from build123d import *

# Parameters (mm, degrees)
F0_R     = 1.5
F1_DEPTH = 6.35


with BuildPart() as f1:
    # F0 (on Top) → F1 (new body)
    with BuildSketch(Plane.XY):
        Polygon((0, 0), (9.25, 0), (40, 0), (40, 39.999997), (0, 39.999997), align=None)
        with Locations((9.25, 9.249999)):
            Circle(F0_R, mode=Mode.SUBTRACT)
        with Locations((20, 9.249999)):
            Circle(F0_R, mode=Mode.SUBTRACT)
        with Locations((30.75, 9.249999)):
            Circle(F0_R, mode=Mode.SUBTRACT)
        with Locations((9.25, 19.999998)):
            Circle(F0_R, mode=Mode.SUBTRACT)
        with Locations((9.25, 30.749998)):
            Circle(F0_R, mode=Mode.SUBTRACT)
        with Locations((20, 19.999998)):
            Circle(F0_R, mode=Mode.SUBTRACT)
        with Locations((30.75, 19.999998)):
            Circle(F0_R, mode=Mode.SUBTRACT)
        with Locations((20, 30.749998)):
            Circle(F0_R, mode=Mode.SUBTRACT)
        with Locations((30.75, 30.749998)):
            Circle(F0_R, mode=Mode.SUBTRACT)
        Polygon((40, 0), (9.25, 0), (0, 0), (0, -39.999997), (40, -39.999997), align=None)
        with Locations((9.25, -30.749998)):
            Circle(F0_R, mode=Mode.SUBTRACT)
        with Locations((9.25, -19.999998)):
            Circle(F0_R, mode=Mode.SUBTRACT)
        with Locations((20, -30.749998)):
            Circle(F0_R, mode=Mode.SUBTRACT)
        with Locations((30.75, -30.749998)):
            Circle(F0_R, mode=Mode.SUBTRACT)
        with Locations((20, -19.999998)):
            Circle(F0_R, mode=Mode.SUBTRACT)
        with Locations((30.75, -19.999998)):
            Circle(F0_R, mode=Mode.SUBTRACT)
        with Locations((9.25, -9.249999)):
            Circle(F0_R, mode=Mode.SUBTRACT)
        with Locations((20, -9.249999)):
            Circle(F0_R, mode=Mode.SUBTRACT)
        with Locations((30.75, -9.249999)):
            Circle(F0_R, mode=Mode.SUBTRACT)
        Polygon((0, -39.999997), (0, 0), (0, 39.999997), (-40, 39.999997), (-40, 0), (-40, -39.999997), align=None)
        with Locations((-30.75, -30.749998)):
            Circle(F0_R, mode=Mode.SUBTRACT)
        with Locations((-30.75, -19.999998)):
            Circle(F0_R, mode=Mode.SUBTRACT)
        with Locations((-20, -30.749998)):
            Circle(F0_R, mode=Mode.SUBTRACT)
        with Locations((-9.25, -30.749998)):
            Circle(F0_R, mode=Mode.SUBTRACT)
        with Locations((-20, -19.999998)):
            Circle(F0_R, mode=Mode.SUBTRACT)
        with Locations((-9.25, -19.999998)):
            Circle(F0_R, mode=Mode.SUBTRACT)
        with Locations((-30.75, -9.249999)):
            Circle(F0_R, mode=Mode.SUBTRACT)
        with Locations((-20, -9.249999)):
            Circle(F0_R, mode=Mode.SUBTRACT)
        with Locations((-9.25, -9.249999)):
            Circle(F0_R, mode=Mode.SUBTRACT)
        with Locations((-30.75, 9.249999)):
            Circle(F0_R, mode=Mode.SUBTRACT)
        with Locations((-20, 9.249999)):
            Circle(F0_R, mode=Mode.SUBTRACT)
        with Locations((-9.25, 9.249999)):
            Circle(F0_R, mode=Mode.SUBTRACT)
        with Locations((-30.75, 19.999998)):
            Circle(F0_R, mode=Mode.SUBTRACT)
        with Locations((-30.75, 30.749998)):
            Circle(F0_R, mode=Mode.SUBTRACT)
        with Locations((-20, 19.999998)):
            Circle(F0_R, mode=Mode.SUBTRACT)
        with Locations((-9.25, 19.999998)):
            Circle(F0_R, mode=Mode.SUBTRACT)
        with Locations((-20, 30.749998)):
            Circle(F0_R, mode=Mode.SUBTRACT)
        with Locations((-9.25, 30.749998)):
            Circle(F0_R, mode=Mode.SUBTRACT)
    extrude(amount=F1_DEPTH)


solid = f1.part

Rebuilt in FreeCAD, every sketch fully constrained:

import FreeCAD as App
import Part
import Sketcher
from FreeCAD import Vector

doc = App.newDocument("Part")
body = doc.addObject("PartDesign::Body", "Body")

# Sketch on XY plane
sketch1 = body.newObject("Sketcher::SketchObject", "Sketch")
sketch1.AttachmentSupport = (doc.getObject("XY_Plane"), [""])
sketch1.MapMode = "FlatFace"
sketch1.addGeometry([
    Part.LineSegment(Vector(40, 40, 0), Vector(-40, 40, 0)),  # 0
    Part.LineSegment(Vector(-40, 40, 0), Vector(-40, -40, 0)),  # 1
    Part.LineSegment(Vector(-40, -40, 0), Vector(40, -40, 0)),  # 2
    Part.LineSegment(Vector(40, -40, 0), Vector(40, 40, 0)),  # 3
    Part.Circle(Vector(-30.8, -30.7, 0), Vector(0, 0, 1), 1.5),  # 4
    Part.Circle(Vector(-20, -30.7, 0), Vector(0, 0, 1), 1.5),  # 5
    Part.Circle(Vector(-30.8, -20, 0), Vector(0, 0, 1), 1.5),  # 6
    Part.Circle(Vector(-20, -20, 0), Vector(0, 0, 1), 1.5),  # 7
    Part.Circle(Vector(-9.2, -30.7, 0), Vector(0, 0, 1), 1.5),  # 8
    Part.Circle(Vector(-9.2, -20, 0), Vector(0, 0, 1), 1.5),  # 9
    Part.Circle(Vector(-30.8, -9.2, 0), Vector(0, 0, 1), 1.5),  # 10
    Part.Circle(Vector(-20, -9.2, 0), Vector(0, 0, 1), 1.5),  # 11
    Part.Circle(Vector(-9.2, -9.2, 0), Vector(0, 0, 1), 1.5),  # 12
    Part.Circle(Vector(9.2, -30.7, 0), Vector(0, 0, 1), 1.5),  # 13
    Part.Circle(Vector(9.2, -20, 0), Vector(0, 0, 1), 1.5),  # 14
    Part.Circle(Vector(20, -30.7, 0), Vector(0, 0, 1), 1.5),  # 15
    Part.Circle(Vector(30.8, -30.7, 0), Vector(0, 0, 1), 1.5),  # 16
    Part.Circle(Vector(20, -20, 0), Vector(0, 0, 1), 1.5),  # 17
    Part.Circle(Vector(30.8, -20, 0), Vector(0, 0, 1), 1.5),  # 18
    Part.Circle(Vector(9.2, -9.2, 0), Vector(0, 0, 1), 1.5),  # 19
    Part.Circle(Vector(20, -9.2, 0), Vector(0, 0, 1), 1.5),  # 20
    Part.Circle(Vector(30.8, -9.2, 0), Vector(0, 0, 1), 1.5),  # 21
    Part.Circle(Vector(-30.8, 9.2, 0), Vector(0, 0, 1), 1.5),  # 22
    Part.Circle(Vector(-20, 9.2, 0), Vector(0, 0, 1), 1.5),  # 23
    Part.Circle(Vector(-9.2, 9.2, 0), Vector(0, 0, 1), 1.5),  # 24
    Part.Circle(Vector(-30.8, 20, 0), Vector(0, 0, 1), 1.5),  # 25
    Part.Circle(Vector(-20, 20, 0), Vector(0, 0, 1), 1.5),  # 26
    Part.Circle(Vector(-30.8, 30.7, 0), Vector(0, 0, 1), 1.5),  # 27
    Part.Circle(Vector(-20, 30.7, 0), Vector(0, 0, 1), 1.5),  # 28
    Part.Circle(Vector(-9.2, 20, 0), Vector(0, 0, 1), 1.5),  # 29
    Part.Circle(Vector(-9.2, 30.7, 0), Vector(0, 0, 1), 1.5),  # 30
    Part.Circle(Vector(9.2, 9.2, 0), Vector(0, 0, 1), 1.5),  # 31
    Part.Circle(Vector(20, 9.2, 0), Vector(0, 0, 1), 1.5),  # 32
    Part.Circle(Vector(30.8, 9.2, 0), Vector(0, 0, 1), 1.5),  # 33
    Part.Circle(Vector(9.2, 20, 0), Vector(0, 0, 1), 1.5),  # 34
    Part.Circle(Vector(9.2, 30.7, 0), Vector(0, 0, 1), 1.5),  # 35
    Part.Circle(Vector(20, 20, 0), Vector(0, 0, 1), 1.5),  # 36
    Part.Circle(Vector(30.8, 20, 0), Vector(0, 0, 1), 1.5),  # 37
    Part.Circle(Vector(20, 30.7, 0), Vector(0, 0, 1), 1.5),  # 38
    Part.Circle(Vector(30.8, 30.7, 0), Vector(0, 0, 1), 1.5),  # 39
], False)
sketch1.addConstraint([
    Sketcher.Constraint("Coincident", 0, 2, 1, 1),
    Sketcher.Constraint("Coincident", 1, 2, 2, 1),
    Sketcher.Constraint("Coincident", 2, 2, 3, 1),
    Sketcher.Constraint("Coincident", 3, 2, 0, 1),
    Sketcher.Constraint("Horizontal", 0),
    Sketcher.Constraint("Vertical", 1),
    Sketcher.Constraint("Horizontal", 2),
    Sketcher.Constraint("Vertical", 3),
    Sketcher.Constraint("Equal", 4, 5),
    Sketcher.Constraint("Equal", 5, 6),
    Sketcher.Constraint("Equal", 6, 7),
    Sketcher.Constraint("Equal", 7, 8),
    Sketcher.Constraint("Equal", 8, 9),
    Sketcher.Constraint("Equal", 9, 10),
    Sketcher.Constraint("Equal", 10, 11),
    Sketcher.Constraint("Equal", 11, 12),
    Sketcher.Constraint("Equal", 12, 13),
    Sketcher.Constraint("Equal", 13, 14),
    Sketcher.Constraint("Equal", 14, 15),
    Sketcher.Constraint("Equal", 15, 16),
    Sketcher.Constraint("Equal", 16, 17),
    Sketcher.Constraint("Equal", 17, 18),
    Sketcher.Constraint("Equal", 18, 19),
    Sketcher.Constraint("Equal", 19, 20),
    Sketcher.Constraint("Equal", 20, 21),
    Sketcher.Constraint("Equal", 21, 22),
    Sketcher.Constraint("Equal", 22, 23),
    Sketcher.Constraint("Equal", 23, 24),
    Sketcher.Constraint("Equal", 24, 25),
    Sketcher.Constraint("Equal", 25, 26),
    Sketcher.Constraint("Equal", 26, 27),
    Sketcher.Constraint("Equal", 27, 28),
    Sketcher.Constraint("Equal", 28, 29),
    Sketcher.Constraint("Equal", 29, 30),
    Sketcher.Constraint("Equal", 30, 31),
    Sketcher.Constraint("Equal", 31, 32),
    Sketcher.Constraint("Equal", 32, 33),
    Sketcher.Constraint("Equal", 33, 34),
    Sketcher.Constraint("Equal", 34, 35),
    Sketcher.Constraint("Equal", 35, 36),
    Sketcher.Constraint("Equal", 36, 37),
    Sketcher.Constraint("Equal", 37, 38),
    Sketcher.Constraint("Equal", 38, 39),
    Sketcher.Constraint("Symmetric", 21, 3, 22, 3, -1, 1),
    Sketcher.Constraint("Symmetric", 20, 3, 23, 3, -1, 1),
    Sketcher.Constraint("Symmetric", 19, 3, 24, 3, -1, 1),
    Sketcher.Constraint("Symmetric", 18, 3, 25, 3, -1, 1),
    Sketcher.Constraint("Symmetric", 17, 3, 26, 3, -1, 1),
    Sketcher.Constraint("Symmetric", 16, 3, 27, 3, -1, 1),
    Sketcher.Constraint("Symmetric", 15, 3, 28, 3, -1, 1),
    Sketcher.Constraint("Symmetric", 14, 3, 29, 3, -1, 1),
    Sketcher.Constraint("Symmetric", 13, 3, 30, 3, -1, 1),
    Sketcher.Constraint("Symmetric", 12, 3, 31, 3, -1, 1),
    Sketcher.Constraint("Symmetric", 11, 3, 32, 3, -1, 1),
    Sketcher.Constraint("Symmetric", 10, 3, 33, 3, -1, 1),
    Sketcher.Constraint("Symmetric", 9, 3, 34, 3, -1, 1),
    Sketcher.Constraint("Symmetric", 8, 3, 35, 3, -1, 1),
    Sketcher.Constraint("Symmetric", 7, 3, 36, 3, -1, 1),
    Sketcher.Constraint("Symmetric", 6, 3, 37, 3, -1, 1),
    Sketcher.Constraint("Symmetric", 5, 3, 38, 3, -1, 1),
    Sketcher.Constraint("Symmetric", 4, 3, 39, 3, -1, 1),
    Sketcher.Constraint("Symmetric", 0, 2, 2, 2, -1, 1),
    Sketcher.Constraint("Symmetric", 8, 3, 13, 3, -2),
    Sketcher.Constraint("Symmetric", 9, 3, 14, 3, -2),
    Sketcher.Constraint("Symmetric", 5, 3, 15, 3, -2),
    Sketcher.Constraint("Symmetric", 4, 3, 16, 3, -2),
    Sketcher.Constraint("Symmetric", 7, 3, 17, 3, -2),
    Sketcher.Constraint("Symmetric", 6, 3, 18, 3, -2),
    Sketcher.Constraint("Symmetric", 12, 3, 19, 3, -2),
    Sketcher.Constraint("Symmetric", 11, 3, 20, 3, -2),
    Sketcher.Constraint("Symmetric", 10, 3, 21, 3, -2),
    Sketcher.Constraint("Horizontal", 4, 3, 5, 3),
    Sketcher.Constraint("Horizontal", 6, 3, 7, 3),
    Sketcher.Constraint("Horizontal", 5, 3, 8, 3),
    Sketcher.Constraint("Horizontal", 7, 3, 9, 3),
    Sketcher.Constraint("Horizontal", 10, 3, 11, 3),
    Sketcher.Constraint("Horizontal", 11, 3, 12, 3),
    Sketcher.Constraint("Vertical", 4, 3, 6, 3),
    Sketcher.Constraint("Vertical", 5, 3, 7, 3),
    Sketcher.Constraint("Vertical", 8, 3, 9, 3),
    Sketcher.Constraint("Vertical", 6, 3, 10, 3),
    Sketcher.Constraint("Vertical", 7, 3, 11, 3),
    Sketcher.Constraint("Vertical", 9, 3, 12, 3),
    Sketcher.Constraint("Diameter", 4, 3.0),
    Sketcher.Constraint("DistanceX", 0, 2, 0, 1, 80.0),
    Sketcher.Constraint("DistanceX", 5, 3, -1, 1, 20.0),
    Sketcher.Constraint("DistanceY", 6, 3, -1, 1, 19.999998),
    Sketcher.Constraint("DistanceX", 8, 3, 16, 3, 40.0),
    Sketcher.Constraint("DistanceY", 25, 3, 0, 2, 19.999999),
    Sketcher.Constraint("DistanceX", 4, 3, 8, 3, 21.5),
    Sketcher.Constraint("DistanceY", 4, 3, 10, 3, 21.499999),
    Sketcher.Constraint("DistanceY", 10, 3, 22, 3, 18.499998),
])
pad1 = body.newObject("PartDesign::Pad", "Pad")
pad1.Profile = sketch1
pad1.Length = 6.35

doc.recompute()
